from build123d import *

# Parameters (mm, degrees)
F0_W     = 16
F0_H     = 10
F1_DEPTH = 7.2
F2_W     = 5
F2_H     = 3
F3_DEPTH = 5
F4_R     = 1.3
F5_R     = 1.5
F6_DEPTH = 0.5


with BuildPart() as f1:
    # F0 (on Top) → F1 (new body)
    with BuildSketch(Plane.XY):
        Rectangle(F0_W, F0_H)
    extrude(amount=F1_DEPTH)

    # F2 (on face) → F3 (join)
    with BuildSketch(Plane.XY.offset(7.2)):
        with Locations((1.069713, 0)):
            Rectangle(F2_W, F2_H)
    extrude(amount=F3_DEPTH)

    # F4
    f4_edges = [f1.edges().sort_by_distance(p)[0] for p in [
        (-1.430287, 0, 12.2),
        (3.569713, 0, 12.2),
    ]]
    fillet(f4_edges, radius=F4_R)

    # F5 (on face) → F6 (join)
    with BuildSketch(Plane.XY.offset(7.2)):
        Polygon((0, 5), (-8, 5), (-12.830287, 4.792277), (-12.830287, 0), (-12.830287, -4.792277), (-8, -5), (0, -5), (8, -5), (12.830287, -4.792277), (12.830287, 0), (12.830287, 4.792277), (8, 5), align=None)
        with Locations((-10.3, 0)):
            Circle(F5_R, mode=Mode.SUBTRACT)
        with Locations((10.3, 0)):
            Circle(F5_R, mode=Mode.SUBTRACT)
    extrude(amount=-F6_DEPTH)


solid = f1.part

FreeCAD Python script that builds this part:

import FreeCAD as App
import Part
import Sketcher


def edges_at(feature, points):
    """Names of the edges that pass closest to the given points."""
    edges = feature.Shape.Edges
    near = lambda p: min(range(len(edges)), key=lambda i: edges[i].distToShape(Part.Vertex(*p))[0])
    return sorted({f"Edge{near(p) + 1}" for p in points})

doc = App.newDocument("Part")
body = doc.addObject("PartDesign::Body", "Body")

sketch1 = doc.addObject("Sketcher::SketchObject", "Sketch")
body.addObject(sketch1)
sketch1.AttachmentSupport = (doc.XY_Plane, [""])
sketch1.MapMode = "FlatFace"
sketch1.addGeometry([
    Part.LineSegment(App.Vector(-8, 5, 0), App.Vector(-8, -5, 0)),
    Part.LineSegment(App.Vector(-8, -5, 0), App.Vector(8, -5, 0)),
    Part.LineSegment(App.Vector(8, -5, 0), App.Vector(8, 5, 0)),
    Part.LineSegment(App.Vector(8, 5, 0), App.Vector(-8, 5, 0)),
], False)
sketch1.addConstraint([
    Sketcher.Constraint("Coincident", 0, 2, 1, 1),
    Sketcher.Constraint("Coincident", 1, 2, 2, 1),
    Sketcher.Constraint("Coincident", 2, 2, 3, 1),
    Sketcher.Constraint("Coincident", 3, 2, 0, 1),
    Sketcher.Constraint("Vertical", 0),
    Sketcher.Constraint("Horizontal", 1),
    Sketcher.Constraint("Vertical", 2),
    Sketcher.Constraint("Horizontal", 3),
    Sketcher.Constraint("Symmetric", 0, 2, 2, 2, -1, 1),
    Sketcher.Constraint("DistanceX", 1, 1, 1, 2, 16.0),
    Sketcher.Constraint("DistanceY", 0, 2, 0, 1, 10.0),
])
pad1 = doc.addObject("PartDesign::Pad", "Pad")
body.addObject(pad1)
pad1.Profile = sketch1
pad1.Length = 7.2

sketch2 = doc.addObject("Sketcher::SketchObject", "Sketch001")
body.addObject(sketch2)
sketch2.AttachmentSupport = (doc.XY_Plane, [""])
sketch2.MapMode = "FlatFace"
sketch2.AttachmentOffset = App.Placement(App.Vector(0, 0, 7.2), App.Rotation())
sketch2.addGeometry([
    Part.LineSegment(App.Vector(-1.4, 1.5, 0), App.Vector(-1.4, -1.5, 0)),
    Part.LineSegment(App.Vector(-1.4, -1.5, 0), App.Vector(3.6, -1.5, 0)),
    Part.LineSegment(App.Vector(3.6, -1.5, 0), App.Vector(3.6, 1.5, 0)),
    Part.LineSegment(App.Vector(3.6, 1.5, 0), App.Vector(-1.4, 1.5, 0)),
], False)
sketch2.addConstraint([
    Sketcher.Constraint("Coincident", 0, 2, 1, 1),
    Sketcher.Constraint("Coincident", 1, 2, 2, 1),
    Sketcher.Constraint("Coincident", 2, 2, 3, 1),
    Sketcher.Constraint("Coincident", 3, 2, 0, 1),
    Sketcher.Constraint("Vertical", 0),
    Sketcher.Constraint("Horizontal", 1),
    Sketcher.Constraint("Vertical", 2),
    Sketcher.Constraint("Horizontal", 3),
    Sketcher.Constraint("DistanceX", 1, 1, 1, 2, 5.0),
    Sketcher.Constraint("DistanceY", 0, 2, 0, 1, 3.0),
    Sketcher.Constraint("DistanceY", 0, 2, -1, 1, 1.5),
    Sketcher.Constraint("DistanceX", 0, 2, -1, 1, 1.430287),
])
pad2 = doc.addObject("PartDesign::Pad", "Pad001")
body.addObject(pad2)
pad2.Profile = sketch2
pad2.Length = 5
doc.recompute()

fillet = doc.addObject("PartDesign::Fillet", "Fillet")
body.addObject(fillet)
fillet.Base = (pad2, edges_at(pad2, [(-1.43, 0, 12.2), (3.57, 0, 12.2)]))
fillet.Radius = 1.3

sketch3 = doc.addObject("Sketcher::SketchObject", "Sketch002")
body.addObject(sketch3)
sketch3.AttachmentSupport = (doc.XY_Plane, [""])
sketch3.MapMode = "FlatFace"
sketch3.AttachmentOffset = App.Placement(App.Vector(0, 0, 7.2), App.Rotation())
sketch3.addGeometry([
    Part.LineSegment(App.Vector(-8, 5, 0), App.Vector(-12.8, 4.8, 0)),
    Part.LineSegment(App.Vector(-12.8, 4.8, 0), App.Vector(-12.8, -4.8, 0)),
    Part.LineSegment(App.Vector(-12.8, -4.8, 0), App.Vector(-8, -5, 0)),
    Part.LineSegment(App.Vector(-8, -5, 0), App.Vector(8, -5, 0)),
    Part.LineSegment(App.Vector(8, -5, 0), App.Vector(12.8, -4.8, 0)),
    Part.LineSegment(App.Vector(12.8, -4.8, 0), App.Vector(12.8, 4.8, 0)),
    Part.LineSegment(App.Vector(12.8, 4.8, 0), App.Vector(8, 5, 0)),
    Part.LineSegment(App.Vector(8, 5, 0), App.Vector(-8, 5, 0)),
    Part.Circle(App.Vector(-10.3, 0, 0), App.Vector(0, 0, 1), 1.5),
    Part.Circle(App.Vector(10.3, 0, 0), App.Vector(0, 0, 1), 1.5),
], False)
sketch3.addConstraint([
    Sketcher.Constraint("Coincident", 0, 2, 1, 1),
    Sketcher.Constraint("Coincident", 1, 2, 2, 1),
    Sketcher.Constraint("Coincident", 2, 2, 3, 1),
    Sketcher.Constraint("Coincident", 3, 2, 4, 1),
    Sketcher.Constraint("Coincident", 4, 2, 5, 1),
    Sketcher.Constraint("Coincident", 5, 2, 6, 1),
    Sketcher.Constraint("Coincident", 6, 2, 7, 1),
    Sketcher.Constraint("Coincident", 7, 2, 0, 1),
    Sketcher.Constraint("Vertical", 1),
    Sketcher.Constraint("Horizontal", 3),
    Sketcher.Constraint("Vertical", 5),
    Sketcher.Constraint("Horizontal", 7),
    Sketcher.Constraint("Equal", 8, 9),
    Sketcher.Constraint("Symmetric", 8, 3, 9, 3, -1, 1),
    Sketcher.Constraint("Symmetric", 0, 2, 4, 2, -1, 1),
    Sketcher.Constraint("Symmetric", 2, 2, 6, 2, -1, 1),
    Sketcher.Constraint("PointOnObject", 8, 3, -1),
    Sketcher.Constraint("Parallel", 0, 4),
    Sketcher.Constraint("Parallel", 2, 6),
    Sketcher.Constraint("Horizontal", 1, 2, 4, 2),
    Sketcher.Constraint("Vertical", 3, 2, 6, 2),
    Sketcher.Constraint("Diameter", 8, 3.0),
    Sketcher.Constraint("DistanceX", 3, 1, 3, 2, 16.0),
    Sketcher.Constraint("DistanceY", 2, 2, -1, 1, 5.0),
    Sketcher.Constraint("DistanceX", 8, 3, -1, 1, 10.3),
    Sketcher.Constraint("Distance", 0, 4.834751),
    Sketcher.Constraint("DistanceY", 1, 2, 1, 1, 9.584554),
])
pad3 = doc.addObject("PartDesign::Pad", "Pad002")
body.addObject(pad3)
pad3.Profile = sketch3
pad3.Length = 0.5
pad3.Reversed = True

doc.recompute()
